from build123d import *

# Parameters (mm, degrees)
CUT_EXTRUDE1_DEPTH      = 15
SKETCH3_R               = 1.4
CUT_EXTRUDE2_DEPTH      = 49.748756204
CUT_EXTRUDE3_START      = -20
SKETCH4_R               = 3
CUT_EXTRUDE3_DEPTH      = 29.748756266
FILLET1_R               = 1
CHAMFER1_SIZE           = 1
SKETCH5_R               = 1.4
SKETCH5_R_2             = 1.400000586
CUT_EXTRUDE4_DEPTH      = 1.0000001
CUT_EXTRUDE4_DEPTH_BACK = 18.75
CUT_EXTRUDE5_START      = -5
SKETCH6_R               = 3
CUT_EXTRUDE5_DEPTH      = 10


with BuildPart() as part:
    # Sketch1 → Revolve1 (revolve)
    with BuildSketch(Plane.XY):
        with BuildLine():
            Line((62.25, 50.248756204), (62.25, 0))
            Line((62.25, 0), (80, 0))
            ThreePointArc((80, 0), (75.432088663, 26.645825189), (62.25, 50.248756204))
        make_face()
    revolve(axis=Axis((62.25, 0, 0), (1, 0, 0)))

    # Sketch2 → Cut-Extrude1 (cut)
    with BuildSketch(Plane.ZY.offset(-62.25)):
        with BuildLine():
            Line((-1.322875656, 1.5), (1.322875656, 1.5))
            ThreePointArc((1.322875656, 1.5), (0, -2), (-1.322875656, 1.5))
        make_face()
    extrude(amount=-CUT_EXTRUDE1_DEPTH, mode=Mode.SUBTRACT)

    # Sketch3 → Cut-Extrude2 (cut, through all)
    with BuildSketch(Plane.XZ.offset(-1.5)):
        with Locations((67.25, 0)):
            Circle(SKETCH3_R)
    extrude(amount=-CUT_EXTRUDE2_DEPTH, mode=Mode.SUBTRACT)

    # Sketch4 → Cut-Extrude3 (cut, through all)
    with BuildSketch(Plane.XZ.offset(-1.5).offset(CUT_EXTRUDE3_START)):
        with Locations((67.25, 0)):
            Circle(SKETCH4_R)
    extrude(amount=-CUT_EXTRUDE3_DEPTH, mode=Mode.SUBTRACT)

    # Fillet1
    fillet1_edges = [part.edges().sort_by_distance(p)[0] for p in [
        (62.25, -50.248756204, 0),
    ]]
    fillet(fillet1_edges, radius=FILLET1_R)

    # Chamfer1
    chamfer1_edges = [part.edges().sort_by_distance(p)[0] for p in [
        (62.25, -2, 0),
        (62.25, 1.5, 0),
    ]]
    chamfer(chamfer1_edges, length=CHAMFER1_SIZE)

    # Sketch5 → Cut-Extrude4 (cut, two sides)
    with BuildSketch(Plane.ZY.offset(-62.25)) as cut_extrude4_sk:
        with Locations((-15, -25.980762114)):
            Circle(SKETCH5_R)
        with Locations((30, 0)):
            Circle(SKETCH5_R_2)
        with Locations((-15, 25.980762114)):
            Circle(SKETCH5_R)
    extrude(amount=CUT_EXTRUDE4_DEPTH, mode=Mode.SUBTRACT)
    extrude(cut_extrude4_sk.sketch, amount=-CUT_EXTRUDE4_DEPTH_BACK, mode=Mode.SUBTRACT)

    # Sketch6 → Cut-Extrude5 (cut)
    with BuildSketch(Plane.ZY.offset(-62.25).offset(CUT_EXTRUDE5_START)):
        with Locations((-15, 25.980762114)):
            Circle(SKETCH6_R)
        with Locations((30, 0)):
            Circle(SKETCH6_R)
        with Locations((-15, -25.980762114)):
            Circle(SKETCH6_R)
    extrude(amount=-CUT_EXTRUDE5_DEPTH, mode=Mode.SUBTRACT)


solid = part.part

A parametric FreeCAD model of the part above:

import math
import FreeCAD as App
import Part
import Sketcher

V = App.Vector


def edges_at(feature, points):
    """Names of the edges that pass closest to the given points."""
    edges = feature.Shape.Edges
    near = lambda p: min(range(len(edges)), key=lambda i: edges[i].distToShape(Part.Vertex(*p))[0])
    return sorted({f"Edge{near(p) + 1}" for p in points})

doc = App.newDocument("Part")
body = doc.addObject("PartDesign::Body", "Body")

# Sketch on XY plane
sketch1 = doc.addObject("Sketcher::SketchObject", "Sketch")
body.addObject(sketch1)
sketch1.AttachmentSupport = (doc.XY_Plane, [""])
sketch1.MapMode = "FlatFace"
sketch1.addGeometry([
    Part.LineSegment(V(62, 50, 0), V(62, 0, 0)),
    Part.LineSegment(V(62, 0, 0), V(80, 0, 0)),
    Part.ArcOfCircle(Part.Circle(V(0, 0, 0), V(0, 0, 1), 80), math.radians(0), math.radians(39)),
], False)
sketch1.addConstraint([
    Sketcher.Constraint("Coincident", 0, 2, 1, 1),
    Sketcher.Constraint("Coincident", 1, 2, 2, 1),
    Sketcher.Constraint("Coincident", 2, 2, 0, 1),
    Sketcher.Constraint("Vertical", 0),
    Sketcher.Constraint("Horizontal", 1),
    Sketcher.Constraint("Coincident", 2, 3, -1, 1),
    Sketcher.Constraint("PointOnObject", 0, 2, -1),
    Sketcher.Constraint("Radius", 2, 80.0),
    Sketcher.Constraint("DistanceX", 1, 1, 1, 2, 17.75),
])
revolution = doc.addObject("PartDesign::Revolution", "Revolution")
body.addObject(revolution)
revolution.Profile = sketch1
revolution.ReferenceAxis = (sketch1, ["H_Axis"])
revolution.Angle = 360

# Sketch on YZ plane
sketch2 = doc.addObject("Sketcher::SketchObject", "Sketch001")
body.addObject(sketch2)
sketch2.AttachmentSupport = (doc.YZ_Plane, [""])
sketch2.MapMode = "FlatFace"
sketch2.AttachmentOffset = App.Placement(V(0, 0, 62.25), App.Rotation())
sketch2.addGeometry([
    Part.LineSegment(V(1.5, 1.3, 0), V(1.5, -1.3, 0)),
    Part.ArcOfCircle(Part.Circle(V(0, 0, 0), V(0, 0, 1), 2), math.radians(41), math.radians(319)),
], False)
sketch2.addConstraint([
    Sketcher.Constraint("Coincident", 0, 1, 1, 1),
    Sketcher.Constraint("Coincident", 1, 2, 0, 2),
    Sketcher.Constraint("Vertical", 0),
    Sketcher.Constraint("Coincident", 1, 3, -1, 1),
    Sketcher.Constraint("Radius", 1, 2.0),
    Sketcher.Constraint("DistanceX", -1, 1, 0, 1, 1.5),
])
pocket1 = doc.addObject("PartDesign::Pocket", "Pocket")
body.addObject(pocket1)
pocket1.Profile = sketch2
pocket1.Length = 15
pocket1.Reversed = True

# Sketch on XZ plane
sketch3 = doc.addObject("Sketcher::SketchObject", "Sketch002")
body.addObject(sketch3)
sketch3.AttachmentSupport = (doc.XZ_Plane, [""])
sketch3.MapMode = "FlatFace"
sketch3.AttachmentOffset = App.Placement(V(0, 0, -1.5), App.Rotation())
sketch3.addGeometry(Part.Circle(V(67.2, 0, 0), V(0, 0, 1), 1.4), False)
sketch3.addConstraint([
    Sketcher.Constraint("PointOnObject", 0, 3, -1),
    Sketcher.Constraint("Diameter", 0, 2.8),
    Sketcher.Constraint("DistanceX", -1, 1, 0, 3, 67.25),
])
pocket2 = doc.addObject("PartDesign::Pocket", "Pocket001")
body.addObject(pocket2)
pocket2.Profile = sketch3
pocket2.Type = "ThroughAll"

# Sketch on XZ plane
sketch4 = doc.addObject("Sketcher::SketchObject", "Sketch003")
body.addObject(sketch4)
sketch4.AttachmentSupport = (doc.XZ_Plane, [""])
sketch4.MapMode = "FlatFace"
sketch4.AttachmentOffset = App.Placement(V(0, 0, -21.5), App.Rotation())
sketch4.addGeometry(Part.Circle(V(67.2, 0, 0), V(0, 0, 1), 3), False)
sketch4.addConstraint([
    Sketcher.Constraint("PointOnObject", 0, 3, -1),
    Sketcher.Constraint("Diameter", 0, 6.0),
    Sketcher.Constraint("DistanceX", -1, 1, 0, 3, 67.25),
])
pocket3 = doc.addObject("PartDesign::Pocket", "Pocket002")
body.addObject(pocket3)
pocket3.Profile = sketch4
pocket3.Type = "ThroughAll"
doc.recompute()

fillet = doc.addObject("PartDesign::Fillet", "Fillet")
body.addObject(fillet)
fillet.Base = (pocket3, edges_at(pocket3, [(62.25, -50.249, 0)]))
fillet.Radius = 1
doc.recompute()

chamfer = doc.addObject("PartDesign::Chamfer", "Chamfer")
body.addObject(chamfer)
chamfer.Base = (fillet, edges_at(fillet, [(62.25, -2, 0), (62.25, 1.5, 0)]))
chamfer.Size = 1

# Sketch on YZ plane
sketch5 = doc.addObject("Sketcher::SketchObject", "Sketch004")
body.addObject(sketch5)
sketch5.AttachmentSupport = (doc.YZ_Plane, [""])
sketch5.MapMode = "FlatFace"
sketch5.AttachmentOffset = App.Placement(V(0, 0, 62.25), App.Rotation())
sketch5.addGeometry([
    Part.Circle(V(-26, -15, 0), V(0, 0, 1), 1.4),
    Part.Circle(V(0, 30, 0), V(0, 0, 1), 1.4),
    Part.Circle(V(26, -15, 0), V(0, 0, 1), 1.4),
], False)
sketch5.addConstraint([
    Sketcher.Constraint("Equal", 0, 1),
    Sketcher.Constraint("Equal", 1, 2),
    Sketcher.Constraint("Symmetric", 0, 3, 2, 3, -2),
    Sketcher.Constraint("PointOnObject", 1, 3, -2),
    Sketcher.Constraint("Diameter", 0, 2.8),
    Sketcher.Constraint("DistanceY", 0, 3, -1, 1, 15.0),
    Sketcher.Constraint("DistanceY", -1, 1, 1, 3, 30.0),
    Sketcher.Constraint("DistanceX", 0, 3, -1, 1, 25.980762),
])
pocket4 = doc.addObject("PartDesign::Pocket", "Pocket003")
body.addObject(pocket4)
pocket4.Profile = sketch5
pocket4.Type = "ThroughAll"
pocket4.Midplane = True

# Sketch on YZ plane
sketch6 = doc.addObject("Sketcher::SketchObject", "Sketch005")
body.addObject(sketch6)
sketch6.AttachmentSupport = (doc.YZ_Plane, [""])
sketch6.MapMode = "FlatFace"
sketch6.AttachmentOffset = App.Placement(V(0, 0, 67.25), App.Rotation())
sketch6.addGeometry([
    Part.Circle(V(26, -15, 0), V(0, 0, 1), 3),
    Part.Circle(V(0, 30, 0), V(0, 0, 1), 3),
    Part.Circle(V(-26, -15, 0), V(0, 0, 1), 3),
], False)
sketch6.addConstraint([
    Sketcher.Constraint("Equal", 0, 1),
    Sketcher.Constraint("Equal", 1, 2),
    Sketcher.Constraint("Symmetric", 0, 3, 2, 3, -2),
    Sketcher.Constraint("PointOnObject", 1, 3, -2),
    Sketcher.Constraint("Diameter", 0, 6.0),
    Sketcher.Constraint("DistanceY", 0, 3, -1, 1, 15.0),
    Sketcher.Constraint("DistanceY", -1, 1, 1, 3, 30.0),
    Sketcher.Constraint("DistanceX", -1, 1, 0, 3, 25.980762),
])
pocket5 = doc.addObject("PartDesign::Pocket", "Pocket004")
body.addObject(pocket5)
pocket5.Profile = sketch6
pocket5.Length = 10
pocket5.Reversed = True

doc.recompute()
